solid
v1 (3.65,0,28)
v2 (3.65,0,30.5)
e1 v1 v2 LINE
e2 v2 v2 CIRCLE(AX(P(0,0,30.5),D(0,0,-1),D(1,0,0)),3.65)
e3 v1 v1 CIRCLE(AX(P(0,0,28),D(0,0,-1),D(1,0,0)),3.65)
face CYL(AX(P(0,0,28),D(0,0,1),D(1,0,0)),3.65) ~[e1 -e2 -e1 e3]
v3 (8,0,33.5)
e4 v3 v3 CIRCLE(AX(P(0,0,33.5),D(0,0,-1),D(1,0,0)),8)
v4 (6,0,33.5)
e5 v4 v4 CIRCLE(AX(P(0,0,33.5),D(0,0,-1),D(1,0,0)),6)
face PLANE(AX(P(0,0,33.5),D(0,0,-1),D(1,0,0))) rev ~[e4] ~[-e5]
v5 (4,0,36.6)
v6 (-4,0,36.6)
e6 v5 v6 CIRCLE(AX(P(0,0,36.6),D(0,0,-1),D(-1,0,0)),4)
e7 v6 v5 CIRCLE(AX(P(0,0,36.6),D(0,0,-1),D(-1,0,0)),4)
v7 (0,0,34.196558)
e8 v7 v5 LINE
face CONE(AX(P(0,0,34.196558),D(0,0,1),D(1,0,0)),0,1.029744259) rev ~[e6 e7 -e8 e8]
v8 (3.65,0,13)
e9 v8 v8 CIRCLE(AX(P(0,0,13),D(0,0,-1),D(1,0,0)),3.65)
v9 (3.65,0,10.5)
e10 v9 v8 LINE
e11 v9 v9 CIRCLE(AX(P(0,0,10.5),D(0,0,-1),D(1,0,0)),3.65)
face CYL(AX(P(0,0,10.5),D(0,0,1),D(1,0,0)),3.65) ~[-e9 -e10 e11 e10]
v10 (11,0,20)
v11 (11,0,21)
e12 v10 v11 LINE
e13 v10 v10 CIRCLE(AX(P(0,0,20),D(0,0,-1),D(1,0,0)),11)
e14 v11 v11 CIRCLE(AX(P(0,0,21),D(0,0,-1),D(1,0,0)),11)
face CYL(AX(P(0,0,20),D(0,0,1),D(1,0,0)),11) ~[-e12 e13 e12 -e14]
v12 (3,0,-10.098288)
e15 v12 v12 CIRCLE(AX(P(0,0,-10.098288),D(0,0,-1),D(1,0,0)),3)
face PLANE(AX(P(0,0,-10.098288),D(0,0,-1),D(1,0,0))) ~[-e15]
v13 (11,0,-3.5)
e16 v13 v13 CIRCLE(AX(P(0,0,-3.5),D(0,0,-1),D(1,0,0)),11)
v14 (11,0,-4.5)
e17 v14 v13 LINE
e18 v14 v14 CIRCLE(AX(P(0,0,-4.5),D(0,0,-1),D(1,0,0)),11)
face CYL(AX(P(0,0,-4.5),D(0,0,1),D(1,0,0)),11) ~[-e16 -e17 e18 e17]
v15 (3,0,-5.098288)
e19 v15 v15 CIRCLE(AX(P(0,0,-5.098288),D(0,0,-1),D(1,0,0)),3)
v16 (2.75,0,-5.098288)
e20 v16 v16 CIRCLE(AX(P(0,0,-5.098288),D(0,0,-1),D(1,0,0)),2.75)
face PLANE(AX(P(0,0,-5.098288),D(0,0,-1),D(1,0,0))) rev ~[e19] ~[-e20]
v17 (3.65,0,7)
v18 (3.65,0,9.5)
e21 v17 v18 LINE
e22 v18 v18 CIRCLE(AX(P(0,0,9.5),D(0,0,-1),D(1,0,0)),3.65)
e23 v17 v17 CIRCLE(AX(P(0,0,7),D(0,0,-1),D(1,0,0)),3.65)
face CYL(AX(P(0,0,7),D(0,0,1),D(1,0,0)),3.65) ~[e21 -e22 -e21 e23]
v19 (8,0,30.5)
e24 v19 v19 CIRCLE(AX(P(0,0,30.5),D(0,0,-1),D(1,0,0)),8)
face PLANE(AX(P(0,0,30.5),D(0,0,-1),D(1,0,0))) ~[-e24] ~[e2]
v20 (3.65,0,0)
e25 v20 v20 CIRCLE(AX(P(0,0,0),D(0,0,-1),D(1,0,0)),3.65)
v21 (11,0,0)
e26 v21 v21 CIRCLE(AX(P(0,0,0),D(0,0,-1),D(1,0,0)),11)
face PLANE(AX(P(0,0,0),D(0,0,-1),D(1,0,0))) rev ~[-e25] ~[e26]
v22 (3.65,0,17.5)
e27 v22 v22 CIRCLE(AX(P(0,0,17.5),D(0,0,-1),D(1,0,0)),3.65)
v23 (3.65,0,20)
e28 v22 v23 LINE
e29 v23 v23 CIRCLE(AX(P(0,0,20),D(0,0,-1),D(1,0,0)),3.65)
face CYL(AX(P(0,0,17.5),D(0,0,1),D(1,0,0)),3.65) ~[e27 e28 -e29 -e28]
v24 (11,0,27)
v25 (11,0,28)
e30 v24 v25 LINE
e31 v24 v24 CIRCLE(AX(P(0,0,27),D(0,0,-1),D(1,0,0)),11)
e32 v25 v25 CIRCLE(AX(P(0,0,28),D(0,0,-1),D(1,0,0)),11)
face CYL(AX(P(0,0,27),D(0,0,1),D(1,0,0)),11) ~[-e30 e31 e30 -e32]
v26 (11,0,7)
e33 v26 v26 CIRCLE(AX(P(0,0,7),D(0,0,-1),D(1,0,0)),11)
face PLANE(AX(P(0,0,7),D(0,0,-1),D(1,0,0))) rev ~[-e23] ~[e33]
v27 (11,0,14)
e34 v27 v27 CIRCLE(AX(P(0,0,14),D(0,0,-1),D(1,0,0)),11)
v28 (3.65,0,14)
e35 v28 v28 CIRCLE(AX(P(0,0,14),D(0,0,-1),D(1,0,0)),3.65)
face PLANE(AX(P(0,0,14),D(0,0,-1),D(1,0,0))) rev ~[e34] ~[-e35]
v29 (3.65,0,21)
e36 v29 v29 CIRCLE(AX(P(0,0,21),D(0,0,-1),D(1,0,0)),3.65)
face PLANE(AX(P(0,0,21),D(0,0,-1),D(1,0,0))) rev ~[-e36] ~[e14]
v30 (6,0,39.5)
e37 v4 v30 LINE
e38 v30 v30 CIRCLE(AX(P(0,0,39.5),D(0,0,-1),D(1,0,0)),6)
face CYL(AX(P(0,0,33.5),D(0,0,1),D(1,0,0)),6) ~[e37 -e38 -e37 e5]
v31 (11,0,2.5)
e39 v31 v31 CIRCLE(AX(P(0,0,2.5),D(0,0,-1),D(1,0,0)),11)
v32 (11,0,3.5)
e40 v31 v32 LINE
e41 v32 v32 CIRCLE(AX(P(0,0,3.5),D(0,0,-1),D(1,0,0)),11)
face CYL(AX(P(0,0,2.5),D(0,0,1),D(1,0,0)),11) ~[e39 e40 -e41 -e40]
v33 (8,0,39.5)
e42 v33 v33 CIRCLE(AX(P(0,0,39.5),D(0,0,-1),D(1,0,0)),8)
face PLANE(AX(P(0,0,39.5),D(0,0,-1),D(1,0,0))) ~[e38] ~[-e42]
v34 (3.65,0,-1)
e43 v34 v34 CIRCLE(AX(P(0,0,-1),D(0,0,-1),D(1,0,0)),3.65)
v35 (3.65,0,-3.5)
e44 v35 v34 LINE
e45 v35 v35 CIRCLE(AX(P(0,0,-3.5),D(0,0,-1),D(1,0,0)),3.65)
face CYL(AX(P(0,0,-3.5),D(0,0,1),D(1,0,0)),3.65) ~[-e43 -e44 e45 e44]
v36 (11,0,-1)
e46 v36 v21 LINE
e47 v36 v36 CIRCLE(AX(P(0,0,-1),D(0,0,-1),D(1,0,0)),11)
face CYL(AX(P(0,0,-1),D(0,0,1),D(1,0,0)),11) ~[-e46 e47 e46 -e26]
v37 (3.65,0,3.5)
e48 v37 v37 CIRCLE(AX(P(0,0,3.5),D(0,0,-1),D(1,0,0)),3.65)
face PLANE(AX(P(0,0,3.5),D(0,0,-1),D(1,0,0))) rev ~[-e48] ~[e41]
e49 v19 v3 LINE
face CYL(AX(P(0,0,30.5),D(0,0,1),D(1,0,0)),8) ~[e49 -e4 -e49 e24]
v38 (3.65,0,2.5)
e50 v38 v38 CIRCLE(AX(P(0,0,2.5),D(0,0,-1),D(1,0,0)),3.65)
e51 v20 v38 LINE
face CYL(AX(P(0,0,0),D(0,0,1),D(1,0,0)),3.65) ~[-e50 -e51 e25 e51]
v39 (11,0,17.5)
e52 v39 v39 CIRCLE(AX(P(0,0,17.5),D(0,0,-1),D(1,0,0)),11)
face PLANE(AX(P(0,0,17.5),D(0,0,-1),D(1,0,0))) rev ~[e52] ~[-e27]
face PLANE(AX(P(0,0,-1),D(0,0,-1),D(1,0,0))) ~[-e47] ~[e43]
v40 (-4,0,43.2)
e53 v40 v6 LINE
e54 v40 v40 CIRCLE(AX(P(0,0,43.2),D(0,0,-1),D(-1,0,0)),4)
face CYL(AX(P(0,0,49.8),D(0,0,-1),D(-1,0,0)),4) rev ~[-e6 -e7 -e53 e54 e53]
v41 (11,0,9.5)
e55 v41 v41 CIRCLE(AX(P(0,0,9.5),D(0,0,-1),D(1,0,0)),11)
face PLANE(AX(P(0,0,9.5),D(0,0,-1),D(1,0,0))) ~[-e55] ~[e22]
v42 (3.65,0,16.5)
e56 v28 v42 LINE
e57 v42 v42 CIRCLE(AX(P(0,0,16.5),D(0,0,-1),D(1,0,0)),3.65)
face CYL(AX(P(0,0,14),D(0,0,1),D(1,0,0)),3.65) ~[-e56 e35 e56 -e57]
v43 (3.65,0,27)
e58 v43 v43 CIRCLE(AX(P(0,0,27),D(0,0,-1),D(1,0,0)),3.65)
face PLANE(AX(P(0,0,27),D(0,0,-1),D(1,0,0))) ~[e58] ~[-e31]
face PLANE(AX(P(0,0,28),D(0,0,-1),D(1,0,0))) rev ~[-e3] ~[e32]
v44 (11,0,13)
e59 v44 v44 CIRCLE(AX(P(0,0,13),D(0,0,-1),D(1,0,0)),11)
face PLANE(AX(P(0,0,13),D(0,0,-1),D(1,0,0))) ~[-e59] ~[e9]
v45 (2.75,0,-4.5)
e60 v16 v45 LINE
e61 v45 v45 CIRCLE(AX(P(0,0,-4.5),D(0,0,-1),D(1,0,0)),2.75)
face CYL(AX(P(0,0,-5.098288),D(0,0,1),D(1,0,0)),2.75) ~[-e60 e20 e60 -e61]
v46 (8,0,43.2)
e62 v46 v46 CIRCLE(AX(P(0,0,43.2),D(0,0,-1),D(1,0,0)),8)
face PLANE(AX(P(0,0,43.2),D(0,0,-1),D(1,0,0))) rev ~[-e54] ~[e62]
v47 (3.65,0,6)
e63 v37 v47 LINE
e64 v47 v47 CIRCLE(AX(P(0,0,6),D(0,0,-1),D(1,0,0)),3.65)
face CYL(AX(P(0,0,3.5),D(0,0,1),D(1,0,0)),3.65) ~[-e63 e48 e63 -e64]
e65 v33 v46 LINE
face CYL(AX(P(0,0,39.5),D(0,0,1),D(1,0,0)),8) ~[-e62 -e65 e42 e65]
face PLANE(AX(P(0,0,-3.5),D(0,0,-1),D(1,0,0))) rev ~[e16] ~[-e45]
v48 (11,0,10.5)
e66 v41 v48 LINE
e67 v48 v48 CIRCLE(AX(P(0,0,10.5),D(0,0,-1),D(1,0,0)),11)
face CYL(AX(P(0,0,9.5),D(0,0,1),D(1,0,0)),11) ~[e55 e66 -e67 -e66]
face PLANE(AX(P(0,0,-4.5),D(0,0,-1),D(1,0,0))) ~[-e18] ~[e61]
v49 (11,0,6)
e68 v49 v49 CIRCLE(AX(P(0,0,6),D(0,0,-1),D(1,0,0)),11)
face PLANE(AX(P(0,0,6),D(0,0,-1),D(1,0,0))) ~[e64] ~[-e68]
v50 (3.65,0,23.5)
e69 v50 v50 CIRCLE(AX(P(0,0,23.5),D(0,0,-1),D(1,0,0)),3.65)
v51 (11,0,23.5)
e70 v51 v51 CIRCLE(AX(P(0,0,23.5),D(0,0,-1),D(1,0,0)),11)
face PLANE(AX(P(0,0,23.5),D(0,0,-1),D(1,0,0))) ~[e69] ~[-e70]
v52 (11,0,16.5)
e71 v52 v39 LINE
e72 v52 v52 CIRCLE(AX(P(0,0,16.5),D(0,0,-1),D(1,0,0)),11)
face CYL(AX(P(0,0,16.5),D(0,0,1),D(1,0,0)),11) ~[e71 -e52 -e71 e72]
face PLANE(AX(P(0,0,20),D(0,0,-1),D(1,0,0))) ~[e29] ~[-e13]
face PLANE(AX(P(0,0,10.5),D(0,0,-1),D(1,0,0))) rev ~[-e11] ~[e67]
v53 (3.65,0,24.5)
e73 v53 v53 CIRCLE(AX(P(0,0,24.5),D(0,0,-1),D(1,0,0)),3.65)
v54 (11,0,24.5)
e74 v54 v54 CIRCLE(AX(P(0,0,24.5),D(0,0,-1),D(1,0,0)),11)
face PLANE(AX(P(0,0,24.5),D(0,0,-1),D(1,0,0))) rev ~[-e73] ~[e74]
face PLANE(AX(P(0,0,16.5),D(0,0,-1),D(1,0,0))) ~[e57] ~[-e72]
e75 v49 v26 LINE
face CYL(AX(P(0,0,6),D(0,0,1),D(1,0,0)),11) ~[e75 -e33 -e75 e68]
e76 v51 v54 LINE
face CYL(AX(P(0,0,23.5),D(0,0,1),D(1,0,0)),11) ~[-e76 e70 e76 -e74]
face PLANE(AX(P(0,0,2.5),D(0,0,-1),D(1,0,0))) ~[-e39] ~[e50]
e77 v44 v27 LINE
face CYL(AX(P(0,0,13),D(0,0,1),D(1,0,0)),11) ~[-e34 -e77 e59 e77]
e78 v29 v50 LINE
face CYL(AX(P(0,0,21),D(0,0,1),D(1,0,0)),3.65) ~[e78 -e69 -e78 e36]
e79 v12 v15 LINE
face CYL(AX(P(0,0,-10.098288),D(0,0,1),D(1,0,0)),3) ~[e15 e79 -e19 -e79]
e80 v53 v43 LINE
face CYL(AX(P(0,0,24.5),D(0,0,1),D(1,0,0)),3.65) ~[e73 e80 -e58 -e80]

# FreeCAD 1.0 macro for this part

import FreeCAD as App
import Part
import Sketcher

V = App.Vector


def add_polygon(sketch, points):
    """Adds a closed chain of lines whose ends are joined by coincident constraints."""
    first, n = sketch.GeometryCount, len(points)
    for a, b in zip(points, points[1:] + points[:1]):
        sketch.addGeometry(Part.LineSegment(App.Vector(*a, 0), App.Vector(*b, 0)), False)
    for i in range(n):
        sketch.addConstraint(Sketcher.Constraint("Coincident", first + i, 2, first + (i + 1) % n, 1))

doc = App.newDocument("Part")
body = doc.addObject("PartDesign::Body", "Body")

sketch1 = body.newObject("Sketcher::SketchObject", "Sketch")
sketch1.AttachmentSupport = (doc.getObject("XZ_Plane"), [""])
sketch1.MapMode = "FlatFace"
add_polygon(sketch1, [(0, 43.2), (0, -10.098288), (3, -10.098288), (3, -5.098288), (2.75, -5.098288), (2.75, -4.5), (11, -4.5), (11, -3.5), (3.65, -3.5), (3.65, -1), (11, -1), (11, 0), (3.65, 0), (3.65, 2.5), (11, 2.5), (11, 3.5), (3.65, 3.5), (3.65, 6), (11, 6), (11, 7), (3.65, 7), (3.65, 9.5), (11, 9.5), (11, 10.5), (3.65, 10.5), (3.65, 13), (11, 13), (11, 14), (3.65, 14), (3.65, 16.5), (11, 16.5), (11, 17.5), (3.65, 17.5), (3.65, 20), (11, 20), (11, 21), (3.65, 21), (3.65, 23.5), (11, 23.5), (11, 24.5), (3.65, 24.5), (3.65, 27), (11, 27), (11, 28), (3.65, 28), (3.65, 30.5), (8, 30.5), (8, 33.5), (6, 33.5), (6, 39.5), (8, 39.5), (8, 43.2)])
sketch1.addConstraint(Sketcher.Constraint("Vertical", 0))
sketch1.addConstraint(Sketcher.Constraint("Horizontal", 1))
sketch1.addConstraint(Sketcher.Constraint("Vertical", 2))
sketch1.addConstraint(Sketcher.Constraint("Horizontal", 3))
sketch1.addConstraint(Sketcher.Constraint("Vertical", 4))
sketch1.addConstraint(Sketcher.Constraint("Horizontal", 5))
sketch1.addConstraint(Sketcher.Constraint("Vertical", 6))
sketch1.addConstraint(Sketcher.Constraint("Horizontal", 7))
sketch1.addConstraint(Sketcher.Constraint("Vertical", 8))
sketch1.addConstraint(Sketcher.Constraint("Horizontal", 9))
sketch1.addConstraint(Sketcher.Constraint("Vertical", 10))
sketch1.addConstraint(Sketcher.Constraint("Horizontal", 11))
sketch1.addConstraint(Sketcher.Constraint("Vertical", 12))
sketch1.addConstraint(Sketcher.Constraint("Horizontal", 13))
sketch1.addConstraint(Sketcher.Constraint("Vertical", 14))
sketch1.addConstraint(Sketcher.Constraint("Horizontal", 15))
sketch1.addConstraint(Sketcher.Constraint("Vertical", 16))
sketch1.addConstraint(Sketcher.Constraint("Horizontal", 17))
sketch1.addConstraint(Sketcher.Constraint("Vertical", 18))
sketch1.addConstraint(Sketcher.Constraint("Horizontal", 19))
sketch1.addConstraint(Sketcher.Constraint("Vertical", 20))
sketch1.addConstraint(Sketcher.Constraint("Horizontal", 21))
sketch1.addConstraint(Sketcher.Constraint("Vertical", 22))
sketch1.addConstraint(Sketcher.Constraint("Horizontal", 23))
sketch1.addConstraint(Sketcher.Constraint("Vertical", 24))
sketch1.addConstraint(Sketcher.Constraint("Horizontal", 25))
sketch1.addConstraint(Sketcher.Constraint("Vertical", 26))
sketch1.addConstraint(Sketcher.Constraint("Horizontal", 27))
sketch1.addConstraint(Sketcher.Constraint("Vertical", 28))
sketch1.addConstraint(Sketcher.Constraint("Horizontal", 29))
sketch1.addConstraint(Sketcher.Constraint("Vertical", 30))
sketch1.addConstraint(Sketcher.Constraint("Horizontal", 31))
sketch1.addConstraint(Sketcher.Constraint("Vertical", 32))
sketch1.addConstraint(Sketcher.Constraint("Horizontal", 33))
sketch1.addConstraint(Sketcher.Constraint("Vertical", 34))
sketch1.addConstraint(Sketcher.Constraint("Horizontal", 35))
sketch1.addConstraint(Sketcher.Constraint("Vertical", 36))
sketch1.addConstraint(Sketcher.Constraint("Horizontal", 37))
sketch1.addConstraint(Sketcher.Constraint("Vertical", 38))
sketch1.addConstraint(Sketcher.Constraint("Horizontal", 39))
sketch1.addConstraint(Sketcher.Constraint("Vertical", 40))
sketch1.addConstraint(Sketcher.Constraint("Horizontal", 41))
sketch1.addConstraint(Sketcher.Constraint("Vertical", 42))
sketch1.addConstraint(Sketcher.Constraint("Horizontal", 43))
sketch1.addConstraint(Sketcher.Constraint("Vertical", 44))
sketch1.addConstraint(Sketcher.Constraint("Horizontal", 45))
sketch1.addConstraint(Sketcher.Constraint("Vertical", 46))
sketch1.addConstraint(Sketcher.Constraint("Horizontal", 47))
sketch1.addConstraint(Sketcher.Constraint("Vertical", 48))
sketch1.addConstraint(Sketcher.Constraint("Horizontal", 49))
sketch1.addConstraint(Sketcher.Constraint("Vertical", 50))
sketch1.addConstraint(Sketcher.Constraint("Horizontal", 51))
sketch1.addConstraint(Sketcher.Constraint("Symmetric", 6, 2, 14, 2, -1))
sketch1.addConstraint(Sketcher.Constraint("PointOnObject", 0, 2, -2))
sketch1.addConstraint(Sketcher.Constraint("PointOnObject", 10, 2, -1))
sketch1.addConstraint(Sketcher.Constraint("Vertical", 6, 2, 9, 2))
sketch1.addConstraint(Sketcher.Constraint("Vertical", 8, 2, 11, 2))
sketch1.addConstraint(Sketcher.Constraint("Vertical", 12, 2, 15, 2))
sketch1.addConstraint(Sketcher.Constraint("Vertical", 14, 2, 17, 2))
sketch1.addConstraint(Sketcher.Constraint("Vertical", 16, 2, 19, 2))
sketch1.addConstraint(Sketcher.Constraint("Vertical", 18, 2, 21, 2))
sketch1.addConstraint(Sketcher.Constraint("Vertical", 20, 2, 23, 2))
sketch1.addConstraint(Sketcher.Constraint("Vertical", 22, 2, 25, 2))
sketch1.addConstraint(Sketcher.Constraint("Vertical", 24, 2, 27, 2))
sketch1.addConstraint(Sketcher.Constraint("Vertical", 26, 2, 29, 2))
sketch1.addConstraint(Sketcher.Constraint("Vertical", 28, 2, 31, 2))
sketch1.addConstraint(Sketcher.Constraint("Vertical", 30, 2, 33, 2))
sketch1.addConstraint(Sketcher.Constraint("Vertical", 32, 2, 35, 2))
sketch1.addConstraint(Sketcher.Constraint("Vertical", 34, 2, 37, 2))
sketch1.addConstraint(Sketcher.Constraint("Vertical", 36, 2, 39, 2))
sketch1.addConstraint(Sketcher.Constraint("Vertical", 38, 2, 41, 2))
sketch1.addConstraint(Sketcher.Constraint("Vertical", 40, 2, 43, 2))
sketch1.addConstraint(Sketcher.Constraint("Vertical", 46, 2, 49, 2))
sketch1.addConstraint(Sketcher.Constraint("Equal", 6, 10))
sketch1.addConstraint(Sketcher.Constraint("Equal", 8, 12))
sketch1.addConstraint(Sketcher.Constraint("Equal", 12, 16))
sketch1.addConstraint(Sketcher.Constraint("Equal", 14, 18))
sketch1.addConstraint(Sketcher.Constraint("Equal", 16, 20))
sketch1.addConstraint(Sketcher.Constraint("Equal", 18, 22))
sketch1.addConstraint(Sketcher.Constraint("Equal", 20, 24))
sketch1.addConstraint(Sketcher.Constraint("Equal", 22, 26))
sketch1.addConstraint(Sketcher.Constraint("Equal", 24, 28))
sketch1.addConstraint(Sketcher.Constraint("Equal", 26, 30))
sketch1.addConstraint(Sketcher.Constraint("Equal", 28, 32))
sketch1.addConstraint(Sketcher.Constraint("Equal", 30, 34))
sketch1.addConstraint(Sketcher.Constraint("Equal", 32, 36))
sketch1.addConstraint(Sketcher.Constraint("Equal", 34, 38))
sketch1.addConstraint(Sketcher.Constraint("Equal", 36, 40))
sketch1.addConstraint(Sketcher.Constraint("Equal", 38, 42))
sketch1.addConstraint(Sketcher.Constraint("Equal", 40, 44))
sketch1.addConstraint(Sketcher.Constraint("Equal", 1, 46))
sketch1.addConstraint(Sketcher.Constraint("DistanceX", 1, 1, 1, 2, 3.0))
sketch1.addConstraint(Sketcher.Constraint("DistanceX", 47, 2, 47, 1, 2.0))
sketch1.addConstraint(Sketcher.Constraint("DistanceX", 51, 2, 51, 1, 8.0))
sketch1.addConstraint(Sketcher.Constraint("DistanceY", 2, 1, 2, 2, 5.0))
sketch1.addConstraint(Sketcher.Constraint("DistanceY", 6, 1, 6, 2, 1.0))
sketch1.addConstraint(Sketcher.Constraint("DistanceY", 48, 1, 48, 2, 6.0))
sketch1.addConstraint(Sketcher.Constraint("DistanceY", 8, 1, 8, 2, 2.5))
sketch1.addConstraint(Sketcher.Constraint("DistanceY", 50, 1, 50, 2, 3.7))
sketch1.addConstraint(Sketcher.Constraint("DistanceX", -1, 1, 5, 2, 11.0))
sketch1.addConstraint(Sketcher.Constraint("DistanceX", 3, 2, 3, 1, 0.25))
sketch1.addConstraint(Sketcher.Constraint("DistanceX", 7, 2, 7, 1, 7.35))
sketch1.addConstraint(Sketcher.Constraint("DistanceY", 0, 2, 0, 1, 53.298288))
revolution = body.newObject("PartDesign::Revolution", "Revolution")
revolution.Profile = sketch1
revolution.ReferenceAxis = (sketch1, ["V_Axis"])
revolution.Angle = 360

sketch2 = body.newObject("Sketcher::SketchObject", "Sketch001")
sketch2.AttachmentSupport = (doc.getObject("XY_Plane"), [""])
sketch2.MapMode = "FlatFace"
sketch2.AttachmentOffset = App.Placement(V(0, 0, 43.2), App.Rotation())
sketch2.addGeometry(Part.Circle(V(0, 0, 0), V(0, 0, 1), 4), False)
sketch2.addConstraint(Sketcher.Constraint("Coincident", 0, 3, -1, 1))
sketch2.addConstraint(Sketcher.Constraint("Diameter", 0, 8.0))
doc.recompute()
hole = body.newObject("PartDesign::Hole", "Hole")
hole.Profile = sketch2
hole.ThreadType = "None"
hole.Diameter = 8
hole.DepthType = "Dimension"
hole.Depth = 6.6
hole.DrillPoint = "Angled"
hole.DrillPointAngle = 118

doc.recompute()
